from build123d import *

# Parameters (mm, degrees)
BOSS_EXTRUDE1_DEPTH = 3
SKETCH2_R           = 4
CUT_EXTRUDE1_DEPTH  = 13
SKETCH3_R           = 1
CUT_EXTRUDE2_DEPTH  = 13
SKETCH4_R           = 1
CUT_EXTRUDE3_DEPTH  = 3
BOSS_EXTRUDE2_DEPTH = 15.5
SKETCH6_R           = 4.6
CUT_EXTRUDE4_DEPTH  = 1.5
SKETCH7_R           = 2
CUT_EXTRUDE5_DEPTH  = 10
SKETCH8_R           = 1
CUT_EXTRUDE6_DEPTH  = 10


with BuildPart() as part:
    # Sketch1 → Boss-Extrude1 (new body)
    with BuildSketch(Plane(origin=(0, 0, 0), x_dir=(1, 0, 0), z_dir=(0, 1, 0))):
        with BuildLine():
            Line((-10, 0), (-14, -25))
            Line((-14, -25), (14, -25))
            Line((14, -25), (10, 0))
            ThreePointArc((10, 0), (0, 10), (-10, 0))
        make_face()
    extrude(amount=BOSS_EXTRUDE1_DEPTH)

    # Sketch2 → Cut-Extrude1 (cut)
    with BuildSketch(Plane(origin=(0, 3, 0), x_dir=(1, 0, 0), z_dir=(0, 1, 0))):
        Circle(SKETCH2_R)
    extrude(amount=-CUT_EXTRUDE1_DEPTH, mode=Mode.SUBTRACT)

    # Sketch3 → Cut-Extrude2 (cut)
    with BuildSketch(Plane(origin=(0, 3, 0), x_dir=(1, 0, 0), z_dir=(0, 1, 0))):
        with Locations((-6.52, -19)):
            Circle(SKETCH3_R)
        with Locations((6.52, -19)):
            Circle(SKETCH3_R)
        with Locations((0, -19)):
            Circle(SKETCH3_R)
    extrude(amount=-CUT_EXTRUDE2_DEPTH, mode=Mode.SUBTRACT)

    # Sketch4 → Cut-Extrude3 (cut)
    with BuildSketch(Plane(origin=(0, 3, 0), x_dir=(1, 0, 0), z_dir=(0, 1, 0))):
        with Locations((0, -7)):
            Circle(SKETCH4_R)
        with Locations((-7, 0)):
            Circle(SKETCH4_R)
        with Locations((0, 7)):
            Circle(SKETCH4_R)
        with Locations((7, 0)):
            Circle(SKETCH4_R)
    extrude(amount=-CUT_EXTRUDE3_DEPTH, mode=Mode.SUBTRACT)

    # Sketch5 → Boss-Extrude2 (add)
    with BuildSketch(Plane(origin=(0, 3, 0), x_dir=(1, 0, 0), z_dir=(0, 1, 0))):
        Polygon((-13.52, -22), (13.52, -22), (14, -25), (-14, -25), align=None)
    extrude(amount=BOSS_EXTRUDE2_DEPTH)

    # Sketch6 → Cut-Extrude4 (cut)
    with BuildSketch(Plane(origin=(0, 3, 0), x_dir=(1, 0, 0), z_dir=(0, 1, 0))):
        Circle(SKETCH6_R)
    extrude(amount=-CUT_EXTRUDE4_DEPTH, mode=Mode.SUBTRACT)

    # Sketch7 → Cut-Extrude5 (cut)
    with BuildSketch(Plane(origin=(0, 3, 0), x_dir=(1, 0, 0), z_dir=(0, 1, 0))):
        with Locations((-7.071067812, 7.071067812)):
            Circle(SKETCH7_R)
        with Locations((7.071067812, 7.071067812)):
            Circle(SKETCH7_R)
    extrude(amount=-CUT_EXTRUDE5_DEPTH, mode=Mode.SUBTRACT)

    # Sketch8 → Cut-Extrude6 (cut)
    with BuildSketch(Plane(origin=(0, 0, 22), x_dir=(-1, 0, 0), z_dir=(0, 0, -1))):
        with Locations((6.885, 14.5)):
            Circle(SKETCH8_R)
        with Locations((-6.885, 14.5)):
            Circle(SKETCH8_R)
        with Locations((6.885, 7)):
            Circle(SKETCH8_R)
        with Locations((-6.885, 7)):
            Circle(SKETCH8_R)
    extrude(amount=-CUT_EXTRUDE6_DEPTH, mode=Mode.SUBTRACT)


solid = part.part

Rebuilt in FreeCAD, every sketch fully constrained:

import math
import FreeCAD as App
import Part
import Sketcher

V = App.Vector

doc = App.newDocument("Part")
body = doc.addObject("PartDesign::Body", "Body")

# Sketch on XZ plane
sketch1 = doc.addObject("Sketcher::SketchObject", "Sketch")
body.addObject(sketch1)
sketch1.AttachmentSupport = (doc.XZ_Plane, [""])
sketch1.MapMode = "FlatFace"
sketch1.addGeometry(Part.LineSegment(V(-10, 0, 0), V(-14, 25, 0)), False)
sketch1.addGeometry(Part.LineSegment(V(-14, 25, 0), V(14, 25, 0)), False)
sketch1.addGeometry(Part.LineSegment(V(14, 25, 0), V(10, 0, 0)), False)
sketch1.addGeometry(Part.ArcOfCircle(Part.Circle(V(0, 0, 0), V(0, 0, 1), 10), math.radians(180), math.radians(360)), False)
sketch1.addConstraint(Sketcher.Constraint("Coincident", 0, 2, 1, 1))
sketch1.addConstraint(Sketcher.Constraint("Coincident", 1, 2, 2, 1))
sketch1.addConstraint(Sketcher.Constraint("Coincident", 2, 2, 3, 2))
sketch1.addConstraint(Sketcher.Constraint("Coincident", 3, 1, 0, 1))
sketch1.addConstraint(Sketcher.Constraint("Horizontal", 1))
sketch1.addConstraint(Sketcher.Constraint("Coincident", 3, 3, -1, 1))
sketch1.addConstraint(Sketcher.Constraint("PointOnObject", 2, 2, -1))
sketch1.addConstraint(Sketcher.Constraint("PointOnObject", 3, 1, -1))
sketch1.addConstraint(Sketcher.Constraint("Equal", 0, 2))
sketch1.addConstraint(Sketcher.Constraint("Radius", 3, 10.0))
sketch1.addConstraint(Sketcher.Constraint("DistanceX", 1, 1, 1, 2, 28.0))
sketch1.addConstraint(Sketcher.Constraint("DistanceY", -1, 1, 0, 2, 25.0))
pad1 = doc.addObject("PartDesign::Pad", "Pad")
body.addObject(pad1)
pad1.Profile = sketch1
pad1.Length = 3
pad1.Reversed = True

# Sketch on XZ plane
sketch2 = doc.addObject("Sketcher::SketchObject", "Sketch001")
body.addObject(sketch2)
sketch2.AttachmentSupport = (doc.XZ_Plane, [""])
sketch2.MapMode = "FlatFace"
sketch2.AttachmentOffset = App.Placement(V(0, 0, -3), App.Rotation())
sketch2.addGeometry(Part.Circle(V(0, 0, 0), V(0, 0, 1), 4), False)
sketch2.addConstraint(Sketcher.Constraint("Coincident", 0, 3, -1, 1))
sketch2.addConstraint(Sketcher.Constraint("Diameter", 0, 8.0))
pocket1 = doc.addObject("PartDesign::Pocket", "Pocket")
body.addObject(pocket1)
pocket1.Profile = sketch2
pocket1.Length = 13
pocket1.Reversed = True

# Sketch on XZ plane
sketch3 = doc.addObject("Sketcher::SketchObject", "Sketch002")
body.addObject(sketch3)
sketch3.AttachmentSupport = (doc.XZ_Plane, [""])
sketch3.MapMode = "FlatFace"
sketch3.AttachmentOffset = App.Placement(V(0, 0, -3), App.Rotation())
sketch3.addGeometry(Part.Circle(V(-6.5, 19, 0), V(0, 0, 1), 1), False)
sketch3.addGeometry(Part.Circle(V(6.5, 19, 0), V(0, 0, 1), 1), False)
sketch3.addGeometry(Part.Circle(V(0, 19, 0), V(0, 0, 1), 1), False)
sketch3.addConstraint(Sketcher.Constraint("Equal", 0, 1))
sketch3.addConstraint(Sketcher.Constraint("Equal", 1, 2))
sketch3.addConstraint(Sketcher.Constraint("Symmetric", 0, 3, 1, 3, -2))
sketch3.addConstraint(Sketcher.Constraint("PointOnObject", 2, 3, -2))
sketch3.addConstraint(Sketcher.Constraint("Horizontal", 1, 3, 2, 3))
sketch3.addConstraint(Sketcher.Constraint("Diameter", 0, 2.0))
sketch3.addConstraint(Sketcher.Constraint("DistanceY", -1, 1, 0, 3, 19.0))
sketch3.addConstraint(Sketcher.Constraint("DistanceX", 0, 3, -1, 1, 6.52))
pocket2 = doc.addObject("PartDesign::Pocket", "Pocket001")
body.addObject(pocket2)
pocket2.Profile = sketch3
pocket2.Length = 13
pocket2.Reversed = True

# Sketch on XZ plane
sketch4 = doc.addObject("Sketcher::SketchObject", "Sketch003")
body.addObject(sketch4)
sketch4.AttachmentSupport = (doc.XZ_Plane, [""])
sketch4.MapMode = "FlatFace"
sketch4.AttachmentOffset = App.Placement(V(0, 0, -3), App.Rotation())
sketch4.addGeometry(Part.Circle(V(0, 7, 0), V(0, 0, 1), 1), False)
sketch4.addGeometry(Part.Circle(V(-7, 0, 0), V(0, 0, 1), 1), False)
sketch4.addGeometry(Part.Circle(V(0, -7, 0), V(0, 0, 1), 1), False)
sketch4.addGeometry(Part.Circle(V(7, 0, 0), V(0, 0, 1), 1), False)
sketch4.addConstraint(Sketcher.Constraint("Equal", 0, 1))
sketch4.addConstraint(Sketcher.Constraint("Equal", 1, 2))
sketch4.addConstraint(Sketcher.Constraint("Equal", 2, 3))
sketch4.addConstraint(Sketcher.Constraint("Symmetric", 0, 3, 2, 3, -1, 1))
sketch4.addConstraint(Sketcher.Constraint("Symmetric", 1, 3, 3, 3, -1, 1))
sketch4.addConstraint(Sketcher.Constraint("PointOnObject", 0, 3, -2))
sketch4.addConstraint(Sketcher.Constraint("PointOnObject", 1, 3, -1))
sketch4.addConstraint(Sketcher.Constraint("Diameter", 0, 2.0))
sketch4.addConstraint(Sketcher.Constraint("DistanceY", -1, 1, 0, 3, 7.0))
sketch4.addConstraint(Sketcher.Constraint("DistanceX", 1, 3, -1, 1, 7.0))
pocket3 = doc.addObject("PartDesign::Pocket", "Pocket002")
body.addObject(pocket3)
pocket3.Profile = sketch4
pocket3.Length = 3
pocket3.Reversed = True

# Sketch on XZ plane
sketch5 = doc.addObject("Sketcher::SketchObject", "Sketch004")
body.addObject(sketch5)
sketch5.AttachmentSupport = (doc.XZ_Plane, [""])
sketch5.MapMode = "FlatFace"
sketch5.AttachmentOffset = App.Placement(V(0, 0, -3), App.Rotation())
sketch5.addGeometry(Part.LineSegment(V(13.5, 22, 0), V(-13.5, 22, 0)), False)
sketch5.addGeometry(Part.LineSegment(V(-13.5, 22, 0), V(-14, 25, 0)), False)
sketch5.addGeometry(Part.LineSegment(V(-14, 25, 0), V(14, 25, 0)), False)
sketch5.addGeometry(Part.LineSegment(V(14, 25, 0), V(13.5, 22, 0)), False)
sketch5.addConstraint(Sketcher.Constraint("Coincident", 0, 2, 1, 1))
sketch5.addConstraint(Sketcher.Constraint("Coincident", 1, 2, 2, 1))
sketch5.addConstraint(Sketcher.Constraint("Coincident", 2, 2, 3, 1))
sketch5.addConstraint(Sketcher.Constraint("Coincident", 3, 2, 0, 1))
sketch5.addConstraint(Sketcher.Constraint("Horizontal", 0))
sketch5.addConstraint(Sketcher.Constraint("Horizontal", 2))
sketch5.addConstraint(Sketcher.Constraint("Equal", 1, 3))
sketch5.addConstraint(Sketcher.Constraint("DistanceX", 2, 1, 2, 2, 28.0))
sketch5.addConstraint(Sketcher.Constraint("DistanceY", -1, 1, 0, 2, 22.0))
sketch5.addConstraint(Sketcher.Constraint("DistanceX", 1, 2, -1, 1, 14.0))
sketch5.addConstraint(Sketcher.Constraint("DistanceY", -1, 1, 1, 2, 25.0))
sketch5.addConstraint(Sketcher.Constraint("DistanceX", 0, 2, 0, 1, 27.04))
pad2 = doc.addObject("PartDesign::Pad", "Pad001")
body.addObject(pad2)
pad2.Profile = sketch5
pad2.Length = 15.5
pad2.Reversed = True

# Sketch on XZ plane
sketch6 = doc.addObject("Sketcher::SketchObject", "Sketch005")
body.addObject(sketch6)
sketch6.AttachmentSupport = (doc.XZ_Plane, [""])
sketch6.MapMode = "FlatFace"
sketch6.AttachmentOffset = App.Placement(V(0, 0, -3), App.Rotation())
sketch6.addGeometry(Part.Circle(V(0, 0, 0), V(0, 0, 1), 4.6), False)
sketch6.addConstraint(Sketcher.Constraint("Coincident", 0, 3, -1, 1))
sketch6.addConstraint(Sketcher.Constraint("Diameter", 0, 9.2))
pocket4 = doc.addObject("PartDesign::Pocket", "Pocket003")
body.addObject(pocket4)
pocket4.Profile = sketch6
pocket4.Length = 1.5
pocket4.Reversed = True

# Sketch on XZ plane
sketch7 = doc.addObject("Sketcher::SketchObject", "Sketch006")
body.addObject(sketch7)
sketch7.AttachmentSupport = (doc.XZ_Plane, [""])
sketch7.MapMode = "FlatFace"
sketch7.AttachmentOffset = App.Placement(V(0, 0, -3), App.Rotation())
sketch7.addGeometry(Part.Circle(V(-7.1, -7.1, 0), V(0, 0, 1), 2), False)
sketch7.addGeometry(Part.Circle(V(7.1, -7.1, 0), V(0, 0, 1), 2), False)
sketch7.addConstraint(Sketcher.Constraint("Equal", 0, 1))
sketch7.addConstraint(Sketcher.Constraint("Symmetric", 0, 3, 1, 3, -2))
sketch7.addConstraint(Sketcher.Constraint("Diameter", 0, 4.0))
sketch7.addConstraint(Sketcher.Constraint("DistanceX", 0, 3, -1, 1, 7.071068))
sketch7.addConstraint(Sketcher.Constraint("DistanceY", 0, 3, -1, 1, 7.071068))
pocket5 = doc.addObject("PartDesign::Pocket", "Pocket004")
body.addObject(pocket5)
pocket5.Profile = sketch7
pocket5.Length = 10
pocket5.Reversed = True

# Sketch on XY plane
sketch8 = doc.addObject("Sketcher::SketchObject", "Sketch007")
body.addObject(sketch8)
sketch8.AttachmentSupport = (doc.XY_Plane, [""])
sketch8.MapMode = "FlatFace"
sketch8.AttachmentOffset = App.Placement(V(0, 0, 22), App.Rotation())
sketch8.addGeometry(Part.Circle(V(-6.9, 14.5, 0), V(0, 0, 1), 1), False)
sketch8.addGeometry(Part.Circle(V(6.9, 14.5, 0), V(0, 0, 1), 1), False)
sketch8.addGeometry(Part.Circle(V(-6.9, 7, 0), V(0, 0, 1), 1), False)
sketch8.addGeometry(Part.Circle(V(6.9, 7, 0), V(0, 0, 1), 1), False)
sketch8.addConstraint(Sketcher.Constraint("Equal", 0, 1))
sketch8.addConstraint(Sketcher.Constraint("Equal", 1, 2))
sketch8.addConstraint(Sketcher.Constraint("Equal", 2, 3))
sketch8.addConstraint(Sketcher.Constraint("Symmetric", 0, 3, 1, 3, -2))
sketch8.addConstraint(Sketcher.Constraint("Symmetric", 2, 3, 3, 3, -2))
sketch8.addConstraint(Sketcher.Constraint("Vertical", 0, 3, 2, 3))
sketch8.addConstraint(Sketcher.Constraint("Diameter", 0, 2.0))
sketch8.addConstraint(Sketcher.Constraint("DistanceY", -1, 1, 2, 3, 7.0))
sketch8.addConstraint(Sketcher.Constraint("DistanceY", -1, 1, 0, 3, 14.5))
sketch8.addConstraint(Sketcher.Constraint("DistanceX", 0, 3, 1, 3, 13.77))
pocket6 = doc.addObject("PartDesign::Pocket", "Pocket005")
body.addObject(pocket6)
pocket6.Profile = sketch8
pocket6.Length = 10
pocket6.Reversed = True

doc.recompute()
